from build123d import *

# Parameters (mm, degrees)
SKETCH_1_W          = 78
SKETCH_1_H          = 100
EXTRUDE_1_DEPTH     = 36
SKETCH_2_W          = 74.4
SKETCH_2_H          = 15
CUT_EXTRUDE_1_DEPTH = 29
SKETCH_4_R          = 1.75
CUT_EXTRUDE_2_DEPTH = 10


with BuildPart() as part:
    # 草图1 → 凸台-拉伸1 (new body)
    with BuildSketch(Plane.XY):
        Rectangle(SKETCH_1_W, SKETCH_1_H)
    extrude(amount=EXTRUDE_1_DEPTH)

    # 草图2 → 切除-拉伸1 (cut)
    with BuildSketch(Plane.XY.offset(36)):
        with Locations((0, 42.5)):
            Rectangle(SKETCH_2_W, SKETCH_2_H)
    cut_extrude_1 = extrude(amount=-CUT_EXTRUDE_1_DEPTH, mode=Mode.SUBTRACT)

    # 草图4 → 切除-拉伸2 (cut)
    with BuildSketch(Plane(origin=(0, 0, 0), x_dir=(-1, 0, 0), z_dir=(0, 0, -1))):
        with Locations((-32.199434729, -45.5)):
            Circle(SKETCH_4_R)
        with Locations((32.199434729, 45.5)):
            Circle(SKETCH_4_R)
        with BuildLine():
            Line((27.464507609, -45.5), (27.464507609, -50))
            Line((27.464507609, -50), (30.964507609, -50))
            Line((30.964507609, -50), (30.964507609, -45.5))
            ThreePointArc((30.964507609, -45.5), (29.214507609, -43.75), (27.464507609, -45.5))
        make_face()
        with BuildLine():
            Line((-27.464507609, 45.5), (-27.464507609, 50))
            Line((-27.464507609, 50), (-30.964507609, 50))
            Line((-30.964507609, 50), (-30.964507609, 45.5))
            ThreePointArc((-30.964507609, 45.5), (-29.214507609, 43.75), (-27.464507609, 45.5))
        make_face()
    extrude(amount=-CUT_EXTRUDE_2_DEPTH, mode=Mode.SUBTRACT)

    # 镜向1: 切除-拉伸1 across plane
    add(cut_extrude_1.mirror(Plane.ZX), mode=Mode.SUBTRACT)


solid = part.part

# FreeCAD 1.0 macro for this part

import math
import FreeCAD as App
import Part
import Sketcher
from FreeCAD import Vector


def add_polygon(sketch, points):
    """Adds a closed chain of lines whose ends are joined by coincident constraints."""
    first, n = sketch.GeometryCount, len(points)
    for a, b in zip(points, points[1:] + points[:1]):
        sketch.addGeometry(Part.LineSegment(App.Vector(*a, 0), App.Vector(*b, 0)), False)
    for i in range(n):
        sketch.addConstraint(Sketcher.Constraint("Coincident", first + i, 2, first + (i + 1) % n, 1))

doc = App.newDocument("Part")
body = doc.addObject("PartDesign::Body", "Body")

# Sketch on XY plane
sketch1 = body.newObject("Sketcher::SketchObject", "Sketch")
sketch1.AttachmentSupport = (doc.getObject("XY_Plane"), [""])
sketch1.MapMode = "FlatFace"
add_polygon(sketch1, [(-39, 50), (-39, -50), (39, -50), (39, 50)])  # lines 0-3
sketch1.addConstraint(Sketcher.Constraint("Vertical", 0))
sketch1.addConstraint(Sketcher.Constraint("Horizontal", 1))
sketch1.addConstraint(Sketcher.Constraint("Vertical", 2))
sketch1.addConstraint(Sketcher.Constraint("Horizontal", 3))
sketch1.addConstraint(Sketcher.Constraint("Symmetric", 0, 2, 2, 2, -1, 1))
sketch1.addConstraint(Sketcher.Constraint("DistanceX", 1, 1, 1, 2, 78.0))
sketch1.addConstraint(Sketcher.Constraint("DistanceY", 0, 2, 0, 1, 100.0))
pad1 = body.newObject("PartDesign::Pad", "Pad")
pad1.Profile = sketch1
pad1.Length = 36

# Sketch on XY plane
sketch2 = body.newObject("Sketcher::SketchObject", "Sketch001")
sketch2.AttachmentSupport = (doc.getObject("XY_Plane"), [""])
sketch2.MapMode = "FlatFace"
sketch2.AttachmentOffset = App.Placement(Vector(0, 0, 36), App.Rotation())
add_polygon(sketch2, [(-37, 50), (-37, 35), (37, 35), (37, 50)])  # lines 0-3
sketch2.addConstraint(Sketcher.Constraint("Vertical", 0))
sketch2.addConstraint(Sketcher.Constraint("Horizontal", 1))
sketch2.addConstraint(Sketcher.Constraint("Vertical", 2))
sketch2.addConstraint(Sketcher.Constraint("Horizontal", 3))
sketch2.addConstraint(Sketcher.Constraint("DistanceY", 0, 2, 0, 1, 15.0))
sketch2.addConstraint(Sketcher.Constraint("DistanceX", 1, 1, 1, 2, 74.4))
sketch2.addConstraint(Sketcher.Constraint("DistanceY", -1, 1, 0, 2, 35.0))
sketch2.addConstraint(Sketcher.Constraint("DistanceX", 0, 2, -1, 1, 37.2))
pocket1 = body.newObject("PartDesign::Pocket", "Pocket")
pocket1.Profile = sketch2
pocket1.Length = 29

# Sketch on XY plane
sketch3 = body.newObject("Sketcher::SketchObject", "Sketch002")
sketch3.AttachmentSupport = (doc.getObject("XY_Plane"), [""])
sketch3.MapMode = "FlatFace"
sketch3.addGeometry(Part.Circle(Vector(32.2, -45.5, 0), Vector(0, 0, 1), 1.8), False)
sketch3.addGeometry(Part.Circle(Vector(-32.2, 45.5, 0), Vector(0, 0, 1), 1.8), False)
sketch3.addGeometry(Part.LineSegment(Vector(-27.5, -45.5, 0), Vector(-27.5, -50, 0)), False)
sketch3.addGeometry(Part.LineSegment(Vector(-27.5, -50, 0), Vector(-31, -50, 0)), False)
sketch3.addGeometry(Part.LineSegment(Vector(-31, -50, 0), Vector(-31, -45.5, 0)), False)
sketch3.addGeometry(Part.ArcOfCircle(Part.Circle(Vector(-29.2, -45.5, 0), Vector(0, 0, 1), 1.8), math.radians(0), math.radians(180)), False)
sketch3.addGeometry(Part.LineSegment(Vector(27.5, 45.5, 0), Vector(27.5, 50, 0)), False)
sketch3.addGeometry(Part.LineSegment(Vector(27.5, 50, 0), Vector(31, 50, 0)), False)
sketch3.addGeometry(Part.LineSegment(Vector(31, 50, 0), Vector(31, 45.5, 0)), False)
sketch3.addGeometry(Part.ArcOfCircle(Part.Circle(Vector(29.2, 45.5, 0), Vector(0, 0, 1), 1.8), math.radians(180), math.radians(360)), False)
sketch3.addConstraint(Sketcher.Constraint("Coincident", 2, 2, 3, 1))
sketch3.addConstraint(Sketcher.Constraint("Coincident", 3, 2, 4, 1))
sketch3.addConstraint(Sketcher.Constraint("Tangent", 4, 2, 5, 2))
sketch3.addConstraint(Sketcher.Constraint("Tangent", 5, 1, 2, 1))
sketch3.addConstraint(Sketcher.Constraint("Coincident", 6, 2, 7, 1))
sketch3.addConstraint(Sketcher.Constraint("Coincident", 7, 2, 8, 1))
sketch3.addConstraint(Sketcher.Constraint("Tangent", 8, 2, 9, 2))
sketch3.addConstraint(Sketcher.Constraint("Tangent", 9, 1, 6, 1))
sketch3.addConstraint(Sketcher.Constraint("Vertical", 2))
sketch3.addConstraint(Sketcher.Constraint("Horizontal", 3))
sketch3.addConstraint(Sketcher.Constraint("Vertical", 4))
sketch3.addConstraint(Sketcher.Constraint("Vertical", 6))
sketch3.addConstraint(Sketcher.Constraint("Horizontal", 7))
sketch3.addConstraint(Sketcher.Constraint("Vertical", 8))
sketch3.addConstraint(Sketcher.Constraint("Equal", 0, 1))
sketch3.addConstraint(Sketcher.Constraint("Equal", 1, 5))
sketch3.addConstraint(Sketcher.Constraint("Equal", 5, 9))
sketch3.addConstraint(Sketcher.Constraint("Symmetric", 0, 3, 1, 3, -1, 1))
sketch3.addConstraint(Sketcher.Constraint("Symmetric", 5, 3, 9, 3, -1, 1))
sketch3.addConstraint(Sketcher.Constraint("Horizontal", 0, 3, 5, 3))
sketch3.addConstraint(Sketcher.Constraint("Equal", 4, 6))
sketch3.addConstraint(Sketcher.Constraint("Diameter", 0, 3.5))
sketch3.addConstraint(Sketcher.Constraint("DistanceY", 2, 2, 2, 1, 4.5))
sketch3.addConstraint(Sketcher.Constraint("DistanceY", 2, 2, -1, 1, 50.0))
sketch3.addConstraint(Sketcher.Constraint("DistanceX", 1, 3, 0, 3, 64.398869))
sketch3.addConstraint(Sketcher.Constraint("DistanceX", 5, 3, -1, 1, 29.214508))
pocket2 = body.newObject("PartDesign::Pocket", "Pocket001")
pocket2.Profile = sketch3
pocket2.Length = 10
pocket2.Reversed = True
doc.recompute()

mirrored = body.newObject("PartDesign::Mirrored", "Mirrored")
mirrored.Originals = [pocket1]
mirrored.MirrorPlane = (doc.getObject("XZ_Plane"), [""])
body.Tip = mirrored

doc.recompute()
